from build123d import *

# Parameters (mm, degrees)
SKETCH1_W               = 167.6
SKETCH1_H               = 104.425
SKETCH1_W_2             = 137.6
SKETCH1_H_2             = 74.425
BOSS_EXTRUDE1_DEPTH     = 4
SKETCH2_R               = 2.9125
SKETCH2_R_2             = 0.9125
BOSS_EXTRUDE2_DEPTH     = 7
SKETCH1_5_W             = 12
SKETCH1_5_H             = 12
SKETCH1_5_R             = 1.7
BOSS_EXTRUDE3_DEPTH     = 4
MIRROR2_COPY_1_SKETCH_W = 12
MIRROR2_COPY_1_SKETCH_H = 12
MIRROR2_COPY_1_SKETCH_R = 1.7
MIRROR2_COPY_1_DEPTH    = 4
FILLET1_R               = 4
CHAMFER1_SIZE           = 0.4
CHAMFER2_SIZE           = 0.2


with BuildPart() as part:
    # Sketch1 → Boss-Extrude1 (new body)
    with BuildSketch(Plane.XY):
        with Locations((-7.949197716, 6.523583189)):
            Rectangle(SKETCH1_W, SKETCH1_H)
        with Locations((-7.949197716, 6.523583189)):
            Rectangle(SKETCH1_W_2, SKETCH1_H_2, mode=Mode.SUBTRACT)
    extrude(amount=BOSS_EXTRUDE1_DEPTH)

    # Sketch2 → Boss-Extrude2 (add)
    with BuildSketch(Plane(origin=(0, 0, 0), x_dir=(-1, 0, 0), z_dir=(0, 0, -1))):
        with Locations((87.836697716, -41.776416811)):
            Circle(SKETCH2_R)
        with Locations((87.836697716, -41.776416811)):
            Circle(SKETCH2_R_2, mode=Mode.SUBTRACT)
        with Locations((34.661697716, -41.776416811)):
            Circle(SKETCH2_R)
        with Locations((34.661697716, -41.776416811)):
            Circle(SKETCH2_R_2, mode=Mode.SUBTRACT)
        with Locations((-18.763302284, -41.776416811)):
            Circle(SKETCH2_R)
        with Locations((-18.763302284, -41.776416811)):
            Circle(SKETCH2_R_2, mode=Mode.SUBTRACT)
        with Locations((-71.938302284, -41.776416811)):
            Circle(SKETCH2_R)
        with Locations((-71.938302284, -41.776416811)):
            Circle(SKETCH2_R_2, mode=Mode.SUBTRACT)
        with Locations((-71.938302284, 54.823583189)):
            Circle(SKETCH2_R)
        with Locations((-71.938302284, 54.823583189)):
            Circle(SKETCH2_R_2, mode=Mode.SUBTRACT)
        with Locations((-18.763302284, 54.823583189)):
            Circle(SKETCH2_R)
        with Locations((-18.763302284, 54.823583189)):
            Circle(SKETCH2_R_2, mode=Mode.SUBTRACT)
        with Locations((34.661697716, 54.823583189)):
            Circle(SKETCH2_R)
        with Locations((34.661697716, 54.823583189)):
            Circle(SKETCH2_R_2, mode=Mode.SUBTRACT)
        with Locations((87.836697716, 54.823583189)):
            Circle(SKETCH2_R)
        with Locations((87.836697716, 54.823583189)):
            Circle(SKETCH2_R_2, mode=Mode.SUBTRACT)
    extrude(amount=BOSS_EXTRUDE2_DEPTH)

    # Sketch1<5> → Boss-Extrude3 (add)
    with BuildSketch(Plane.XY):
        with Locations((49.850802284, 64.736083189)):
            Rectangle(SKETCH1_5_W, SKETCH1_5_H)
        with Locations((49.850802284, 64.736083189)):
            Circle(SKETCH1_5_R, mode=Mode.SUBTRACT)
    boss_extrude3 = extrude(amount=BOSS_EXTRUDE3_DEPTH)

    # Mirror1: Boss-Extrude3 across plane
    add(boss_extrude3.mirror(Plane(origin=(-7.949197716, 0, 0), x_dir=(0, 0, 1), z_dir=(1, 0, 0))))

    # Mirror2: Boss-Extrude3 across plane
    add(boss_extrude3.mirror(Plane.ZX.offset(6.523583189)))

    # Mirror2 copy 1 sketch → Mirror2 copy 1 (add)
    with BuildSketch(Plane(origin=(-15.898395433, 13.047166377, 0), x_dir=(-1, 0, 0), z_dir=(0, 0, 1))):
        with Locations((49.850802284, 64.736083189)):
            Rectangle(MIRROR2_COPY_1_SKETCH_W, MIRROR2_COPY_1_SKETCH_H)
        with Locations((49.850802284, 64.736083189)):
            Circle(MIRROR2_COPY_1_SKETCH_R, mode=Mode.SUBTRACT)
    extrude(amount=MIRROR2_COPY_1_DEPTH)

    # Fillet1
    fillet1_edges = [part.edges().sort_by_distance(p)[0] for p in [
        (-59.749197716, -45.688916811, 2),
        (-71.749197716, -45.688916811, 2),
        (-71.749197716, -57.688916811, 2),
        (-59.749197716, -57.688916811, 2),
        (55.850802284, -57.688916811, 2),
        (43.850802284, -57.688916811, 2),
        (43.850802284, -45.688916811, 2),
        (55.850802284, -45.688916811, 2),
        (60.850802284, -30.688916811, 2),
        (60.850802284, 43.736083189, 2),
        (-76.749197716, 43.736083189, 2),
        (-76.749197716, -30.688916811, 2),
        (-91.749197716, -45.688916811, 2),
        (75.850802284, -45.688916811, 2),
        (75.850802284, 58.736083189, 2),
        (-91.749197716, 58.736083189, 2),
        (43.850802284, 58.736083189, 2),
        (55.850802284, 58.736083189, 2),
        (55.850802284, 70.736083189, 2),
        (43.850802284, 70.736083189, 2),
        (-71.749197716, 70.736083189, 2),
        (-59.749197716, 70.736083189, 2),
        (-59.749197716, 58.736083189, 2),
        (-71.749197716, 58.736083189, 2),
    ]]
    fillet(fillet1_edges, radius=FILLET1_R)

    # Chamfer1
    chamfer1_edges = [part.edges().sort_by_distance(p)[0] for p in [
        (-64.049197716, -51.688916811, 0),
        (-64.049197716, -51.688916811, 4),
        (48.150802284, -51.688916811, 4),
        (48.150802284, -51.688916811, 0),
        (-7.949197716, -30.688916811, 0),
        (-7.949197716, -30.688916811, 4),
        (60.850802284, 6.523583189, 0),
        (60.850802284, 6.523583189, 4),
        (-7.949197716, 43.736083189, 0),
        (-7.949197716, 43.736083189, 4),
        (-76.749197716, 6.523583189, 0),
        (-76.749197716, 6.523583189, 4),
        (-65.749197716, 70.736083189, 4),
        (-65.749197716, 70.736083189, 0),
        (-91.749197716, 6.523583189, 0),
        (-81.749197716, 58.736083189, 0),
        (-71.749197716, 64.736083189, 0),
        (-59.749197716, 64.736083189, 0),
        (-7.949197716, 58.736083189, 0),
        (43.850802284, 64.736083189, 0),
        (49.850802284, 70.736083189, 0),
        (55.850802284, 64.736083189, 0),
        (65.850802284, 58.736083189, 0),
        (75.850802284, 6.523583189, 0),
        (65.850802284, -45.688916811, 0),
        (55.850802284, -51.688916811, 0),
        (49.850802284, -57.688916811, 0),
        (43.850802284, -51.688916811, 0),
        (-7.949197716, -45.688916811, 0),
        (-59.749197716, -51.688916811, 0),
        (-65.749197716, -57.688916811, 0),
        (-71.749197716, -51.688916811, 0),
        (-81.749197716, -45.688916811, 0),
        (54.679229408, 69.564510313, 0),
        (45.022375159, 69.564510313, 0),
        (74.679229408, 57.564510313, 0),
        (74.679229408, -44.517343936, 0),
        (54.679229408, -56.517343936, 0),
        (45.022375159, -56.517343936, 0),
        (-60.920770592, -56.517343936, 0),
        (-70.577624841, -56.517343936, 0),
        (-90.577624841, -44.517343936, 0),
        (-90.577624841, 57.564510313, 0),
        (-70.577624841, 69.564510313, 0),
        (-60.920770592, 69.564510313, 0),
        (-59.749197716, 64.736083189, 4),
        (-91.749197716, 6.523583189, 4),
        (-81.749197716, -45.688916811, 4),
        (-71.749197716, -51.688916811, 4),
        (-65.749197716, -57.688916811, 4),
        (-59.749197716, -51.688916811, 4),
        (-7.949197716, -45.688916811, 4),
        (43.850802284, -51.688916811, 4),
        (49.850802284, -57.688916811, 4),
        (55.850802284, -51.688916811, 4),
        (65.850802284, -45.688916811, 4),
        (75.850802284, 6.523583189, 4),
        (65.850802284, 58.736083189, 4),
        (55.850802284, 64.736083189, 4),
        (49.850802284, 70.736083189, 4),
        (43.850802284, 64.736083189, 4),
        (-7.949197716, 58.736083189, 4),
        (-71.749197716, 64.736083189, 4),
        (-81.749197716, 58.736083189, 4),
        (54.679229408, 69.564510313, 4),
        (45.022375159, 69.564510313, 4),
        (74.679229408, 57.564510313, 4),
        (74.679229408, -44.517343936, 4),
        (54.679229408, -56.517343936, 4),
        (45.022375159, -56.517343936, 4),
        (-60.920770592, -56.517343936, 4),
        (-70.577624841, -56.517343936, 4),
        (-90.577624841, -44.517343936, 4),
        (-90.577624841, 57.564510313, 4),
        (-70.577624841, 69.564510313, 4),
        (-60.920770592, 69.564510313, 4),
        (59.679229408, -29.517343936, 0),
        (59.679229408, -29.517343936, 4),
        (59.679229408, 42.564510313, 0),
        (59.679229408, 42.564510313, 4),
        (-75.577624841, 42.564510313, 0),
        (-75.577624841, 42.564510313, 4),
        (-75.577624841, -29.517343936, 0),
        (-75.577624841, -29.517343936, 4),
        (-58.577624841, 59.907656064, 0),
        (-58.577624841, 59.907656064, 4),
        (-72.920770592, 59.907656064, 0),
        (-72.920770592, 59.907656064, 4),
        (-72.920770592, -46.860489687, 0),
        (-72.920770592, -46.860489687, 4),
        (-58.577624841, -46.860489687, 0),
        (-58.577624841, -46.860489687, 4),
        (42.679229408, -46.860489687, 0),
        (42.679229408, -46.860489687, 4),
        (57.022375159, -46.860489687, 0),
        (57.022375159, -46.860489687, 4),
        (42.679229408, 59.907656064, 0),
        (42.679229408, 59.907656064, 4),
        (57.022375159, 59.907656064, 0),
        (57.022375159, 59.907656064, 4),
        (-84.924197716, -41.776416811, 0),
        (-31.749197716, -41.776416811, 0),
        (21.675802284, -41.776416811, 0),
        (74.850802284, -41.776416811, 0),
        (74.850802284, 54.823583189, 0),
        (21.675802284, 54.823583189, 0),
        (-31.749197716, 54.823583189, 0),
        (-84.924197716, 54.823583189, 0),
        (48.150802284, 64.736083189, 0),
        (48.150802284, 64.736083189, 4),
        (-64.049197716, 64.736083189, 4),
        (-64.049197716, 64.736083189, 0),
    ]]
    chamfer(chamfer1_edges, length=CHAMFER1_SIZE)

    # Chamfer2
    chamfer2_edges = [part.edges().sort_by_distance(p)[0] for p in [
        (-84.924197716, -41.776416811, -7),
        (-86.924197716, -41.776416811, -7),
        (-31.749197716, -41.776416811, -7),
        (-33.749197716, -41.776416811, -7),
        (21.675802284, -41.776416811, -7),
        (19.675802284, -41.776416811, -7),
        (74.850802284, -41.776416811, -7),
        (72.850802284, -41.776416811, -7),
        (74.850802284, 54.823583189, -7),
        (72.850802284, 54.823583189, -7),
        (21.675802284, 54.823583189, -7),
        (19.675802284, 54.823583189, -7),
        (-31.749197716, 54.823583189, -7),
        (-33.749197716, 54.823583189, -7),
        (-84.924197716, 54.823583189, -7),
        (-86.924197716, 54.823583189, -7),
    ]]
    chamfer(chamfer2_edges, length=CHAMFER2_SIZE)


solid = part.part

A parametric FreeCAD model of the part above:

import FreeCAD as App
import Part
import Sketcher
from FreeCAD import Vector
Q = App.Units.Quantity


def edges_at(feature, points):
    """Names of the edges that pass closest to the given points."""
    edges = feature.Shape.Edges
    near = lambda p: min(range(len(edges)), key=lambda i: edges[i].distToShape(Part.Vertex(*p))[0])
    return sorted({f"Edge{near(p) + 1}" for p in points})


def add_polygon(sketch, points):
    """Adds a closed chain of lines whose ends are joined by coincident constraints."""
    first, n = sketch.GeometryCount, len(points)
    for a, b in zip(points, points[1:] + points[:1]):
        sketch.addGeometry(Part.LineSegment(App.Vector(*a, 0), App.Vector(*b, 0)), False)
    for i in range(n):
        sketch.addConstraint(Sketcher.Constraint("Coincident", first + i, 2, first + (i + 1) % n, 1))

doc = App.newDocument("Part")
body = doc.addObject("PartDesign::Body", "Body")

sketch1 = body.newObject("Sketcher::SketchObject", "Sketch")
sketch1.AttachmentSupport = (doc.getObject("XY_Plane"), [""])
sketch1.MapMode = "FlatFace"
add_polygon(sketch1, [(-92, 59), (-92, -46), (76, -46), (76, 59)])
add_polygon(sketch1, [(61, -31), (-77, -31), (-77, 44), (61, 44)])
sketch1.addConstraint(Sketcher.Constraint("Vertical", 0))
sketch1.addConstraint(Sketcher.Constraint("Horizontal", 1))
sketch1.addConstraint(Sketcher.Constraint("Vertical", 2))
sketch1.addConstraint(Sketcher.Constraint("Horizontal", 3))
sketch1.addConstraint(Sketcher.Constraint("Horizontal", 4))
sketch1.addConstraint(Sketcher.Constraint("Vertical", 5))
sketch1.addConstraint(Sketcher.Constraint("Horizontal", 6))
sketch1.addConstraint(Sketcher.Constraint("Vertical", 7))
sketch1.addConstraint(Sketcher.Constraint("DistanceX", 1, 1, 1, 2, Q("167.6 mm")))
sketch1.addConstraint(Sketcher.Constraint("DistanceX", 4, 2, 4, 1, Q("137.6 mm")))
sketch1.addConstraint(Sketcher.Constraint("DistanceX", 0, 2, 4, 2, Q("15 mm")))
sketch1.addConstraint(Sketcher.Constraint("DistanceY", 0, 2, 4, 2, Q("15 mm")))
sketch1.addConstraint(Sketcher.Constraint("DistanceY", 5, 2, 3, 2, Q("15 mm")))
sketch1.addConstraint(Sketcher.Constraint("DistanceY", 0, 2, 0, 1, Q("104.425 mm")))
sketch1.addConstraint(Sketcher.Constraint("DistanceX", 0, 2, -1, 1, Q("91.749198 mm")))
sketch1.addConstraint(Sketcher.Constraint("DistanceY", 0, 2, -1, 1, Q("45.688917 mm")))
pad1 = body.newObject("PartDesign::Pad", "Pad")
pad1.Profile = sketch1
pad1.Length = 4

sketch2 = body.newObject("Sketcher::SketchObject", "Sketch001")
sketch2.AttachmentSupport = (doc.getObject("XY_Plane"), [""])
sketch2.MapMode = "FlatFace"
sketch2.addGeometry(Part.Circle(Vector(-87.8, -41.8, 0), Vector(0, 0, 1), 2.9), False)
sketch2.addGeometry(Part.Circle(Vector(-87.8, -41.8, 0), Vector(0, 0, 1), 0.9), False)
sketch2.addGeometry(Part.Circle(Vector(-34.7, -41.8, 0), Vector(0, 0, 1), 2.9), False)
sketch2.addGeometry(Part.Circle(Vector(-34.7, -41.8, 0), Vector(0, 0, 1), 0.9), False)
sketch2.addGeometry(Part.Circle(Vector(18.8, -41.8, 0), Vector(0, 0, 1), 2.9), False)
sketch2.addGeometry(Part.Circle(Vector(18.8, -41.8, 0), Vector(0, 0, 1), 0.9), False)
sketch2.addGeometry(Part.Circle(Vector(71.9, -41.8, 0), Vector(0, 0, 1), 2.9), False)
sketch2.addGeometry(Part.Circle(Vector(71.9, -41.8, 0), Vector(0, 0, 1), 0.9), False)
sketch2.addGeometry(Part.Circle(Vector(71.9, 54.8, 0), Vector(0, 0, 1), 2.9), False)
sketch2.addGeometry(Part.Circle(Vector(71.9, 54.8, 0), Vector(0, 0, 1), 0.9), False)
sketch2.addGeometry(Part.Circle(Vector(18.8, 54.8, 0), Vector(0, 0, 1), 2.9), False)
sketch2.addGeometry(Part.Circle(Vector(18.8, 54.8, 0), Vector(0, 0, 1), 0.9), False)
sketch2.addGeometry(Part.Circle(Vector(-34.7, 54.8, 0), Vector(0, 0, 1), 2.9), False)
sketch2.addGeometry(Part.Circle(Vector(-34.7, 54.8, 0), Vector(0, 0, 1), 0.9), False)
sketch2.addGeometry(Part.Circle(Vector(-87.8, 54.8, 0), Vector(0, 0, 1), 2.9), False)
sketch2.addGeometry(Part.Circle(Vector(-87.8, 54.8, 0), Vector(0, 0, 1), 0.9), False)
sketch2.addConstraint(Sketcher.Constraint("Coincident", 1, 3, 0, 3))
sketch2.addConstraint(Sketcher.Constraint("Coincident", 3, 3, 2, 3))
sketch2.addConstraint(Sketcher.Constraint("Coincident", 5, 3, 4, 3))
sketch2.addConstraint(Sketcher.Constraint("Coincident", 7, 3, 6, 3))
sketch2.addConstraint(Sketcher.Constraint("Coincident", 9, 3, 8, 3))
sketch2.addConstraint(Sketcher.Constraint("Coincident", 11, 3, 10, 3))
sketch2.addConstraint(Sketcher.Constraint("Coincident", 13, 3, 12, 3))
sketch2.addConstraint(Sketcher.Constraint("Coincident", 15, 3, 14, 3))
sketch2.addConstraint(Sketcher.Constraint("Equal", 0, 2))
sketch2.addConstraint(Sketcher.Constraint("Equal", 1, 3))
sketch2.addConstraint(Sketcher.Constraint("Equal", 2, 4))
sketch2.addConstraint(Sketcher.Constraint("Equal", 3, 5))
sketch2.addConstraint(Sketcher.Constraint("Equal", 4, 6))
sketch2.addConstraint(Sketcher.Constraint("Equal", 5, 7))
sketch2.addConstraint(Sketcher.Constraint("Equal", 6, 8))
sketch2.addConstraint(Sketcher.Constraint("Equal", 7, 9))
sketch2.addConstraint(Sketcher.Constraint("Equal", 8, 10))
sketch2.addConstraint(Sketcher.Constraint("Equal", 9, 11))
sketch2.addConstraint(Sketcher.Constraint("Equal", 10, 12))
sketch2.addConstraint(Sketcher.Constraint("Equal", 11, 13))
sketch2.addConstraint(Sketcher.Constraint("Equal", 12, 14))
sketch2.addConstraint(Sketcher.Constraint("Equal", 13, 15))
sketch2.addConstraint(Sketcher.Constraint("Horizontal", 1, 3, 2, 3))
sketch2.addConstraint(Sketcher.Constraint("Horizontal", 3, 3, 4, 3))
sketch2.addConstraint(Sketcher.Constraint("Horizontal", 5, 3, 6, 3))
sketch2.addConstraint(Sketcher.Constraint("Horizontal", 9, 3, 10, 3))
sketch2.addConstraint(Sketcher.Constraint("Horizontal", 11, 3, 12, 3))
sketch2.addConstraint(Sketcher.Constraint("Horizontal", 13, 3, 14, 3))
sketch2.addConstraint(Sketcher.Constraint("Vertical", 7, 3, 8, 3))
sketch2.addConstraint(Sketcher.Constraint("Vertical", 5, 3, 10, 3))
sketch2.addConstraint(Sketcher.Constraint("Vertical", 3, 3, 12, 3))
sketch2.addConstraint(Sketcher.Constraint("Vertical", 1, 3, 14, 3))
sketch2.addConstraint(Sketcher.Constraint("Diameter", 0, Q("5.825 mm")))
sketch2.addConstraint(Sketcher.Constraint("Diameter", 1, Q("1.825 mm")))
sketch2.addConstraint(Sketcher.Constraint("DistanceX", 0, 3, 4, 3, Q("106.6 mm")))
sketch2.addConstraint(Sketcher.Constraint("DistanceX", 2, 3, 6, 3, Q("106.6 mm")))
sketch2.addConstraint(Sketcher.Constraint("DistanceY", 6, 3, 8, 3, Q("96.6 mm")))
sketch2.addConstraint(Sketcher.Constraint("DistanceX", 0, 3, 2, 3, Q("53.175 mm")))
sketch2.addConstraint(Sketcher.Constraint("DistanceX", 0, 3, -1, 1, Q("87.836698 mm")))
sketch2.addConstraint(Sketcher.Constraint("DistanceY", 0, 3, -1, 1, Q("41.776417 mm")))
pad2 = body.newObject("PartDesign::Pad", "Pad001")
pad2.Profile = sketch2
pad2.Length = 7
pad2.Reversed = True

sketch3 = body.newObject("Sketcher::SketchObject", "Sketch002")
sketch3.AttachmentSupport = (doc.getObject("XY_Plane"), [""])
sketch3.MapMode = "FlatFace"
add_polygon(sketch3, [(43.9, 70.7), (43.9, 58.7), (55.9, 58.7), (55.9, 70.7)])
sketch3.addGeometry(Part.Circle(Vector(49.9, 64.7, 0), Vector(0, 0, 1), 1.7), False)
sketch3.addConstraint(Sketcher.Constraint("Vertical", 0))
sketch3.addConstraint(Sketcher.Constraint("Horizontal", 1))
sketch3.addConstraint(Sketcher.Constraint("Vertical", 2))
sketch3.addConstraint(Sketcher.Constraint("Horizontal", 3))
sketch3.addConstraint(Sketcher.Constraint("Equal", 3, 0))
sketch3.addConstraint(Sketcher.Constraint("Diameter", 4, Q("3.4 mm")))
sketch3.addConstraint(Sketcher.Constraint("DistanceX", 1, 1, 1, 2, Q("12 mm")))
sketch3.addConstraint(Sketcher.Constraint("DistanceX", 0, 2, 4, 3, Q("6 mm")))
sketch3.addConstraint(Sketcher.Constraint("DistanceY", 0, 2, 4, 3, Q("6 mm")))
sketch3.addConstraint(Sketcher.Constraint("DistanceX", -1, 1, 4, 3, Q("49.850802 mm")))
sketch3.addConstraint(Sketcher.Constraint("DistanceY", -1, 1, 4, 3, Q("64.736083 mm")))
pad3 = body.newObject("PartDesign::Pad", "Pad002")
pad3.Profile = sketch3
pad3.Length = 4
doc.recompute()

datumplane = body.newObject("PartDesign::Plane", "DatumPlane")
datumplane.AttachmentSupport = (doc.getObject("YZ_Plane"), [""])
datumplane.MapMode = "FlatFace"
datumplane.AttachmentOffset = App.Placement(Vector(0, 0, -7.949198), App.Rotation())
mirrored = body.newObject("PartDesign::Mirrored", "Mirrored")
mirrored.Originals = [pad3]
mirrored.MirrorPlane = (datumplane, [""])
body.Tip = mirrored
doc.recompute()

datumplane2 = body.newObject("PartDesign::Plane", "DatumPlane001")
datumplane2.AttachmentSupport = (doc.getObject("XZ_Plane"), [""])
datumplane2.MapMode = "FlatFace"
datumplane2.AttachmentOffset = App.Placement(Vector(0, 0, -6.523583), App.Rotation())
mirrored2 = body.newObject("PartDesign::Mirrored", "Mirrored001")
mirrored2.Originals = [pad3]
mirrored2.MirrorPlane = (datumplane2, [""])
body.Tip = mirrored2

sketch4 = body.newObject("Sketcher::SketchObject", "Sketch003")
sketch4.AttachmentSupport = (doc.getObject("XY_Plane"), [""])
sketch4.MapMode = "FlatFace"
add_polygon(sketch4, [(-59.7, -57.7), (-59.7, -45.7), (-71.7, -45.7), (-71.7, -57.7)])
sketch4.addGeometry(Part.Circle(Vector(-65.7, -51.7, 0), Vector(0, 0, 1), 1.7), False)
sketch4.addConstraint(Sketcher.Constraint("Vertical", 0))
sketch4.addConstraint(Sketcher.Constraint("Horizontal", 1))
sketch4.addConstraint(Sketcher.Constraint("Vertical", 2))
sketch4.addConstraint(Sketcher.Constraint("Horizontal", 3))
sketch4.addConstraint(Sketcher.Constraint("Equal", 3, 0))
sketch4.addConstraint(Sketcher.Constraint("Diameter", 4, Q("3.4 mm")))
sketch4.addConstraint(Sketcher.Constraint("DistanceX", 1, 2, 1, 1, Q("12 mm")))
sketch4.addConstraint(Sketcher.Constraint("DistanceX", 4, 3, 0, 2, Q("6 mm")))
sketch4.addConstraint(Sketcher.Constraint("DistanceY", 4, 3, 0, 2, Q("6 mm")))
sketch4.addConstraint(Sketcher.Constraint("DistanceX", 4, 3, -1, 1, Q("65.749198 mm")))
sketch4.addConstraint(Sketcher.Constraint("DistanceY", 4, 3, -1, 1, Q("51.688917 mm")))
pad4 = body.newObject("PartDesign::Pad", "Pad003")
pad4.Profile = sketch4
pad4.Length = 4
doc.recompute()

fillet = body.newObject("PartDesign::Fillet", "Fillet")
fillet.Base = (pad4, edges_at(pad4, [
    (-59.749, -45.689, 2),
    (-71.749, -45.689, 2),
    (-71.749, -57.689, 2),
    (-59.749, -57.689, 2),
    (55.851, -57.689, 2),
    (43.851, -57.689, 2),
    (43.851, -45.689, 2),
    (55.851, -45.689, 2),
    (60.851, -30.689, 2),
    (60.851, 43.736, 2),
    (-76.749, 43.736, 2),
    (-76.749, -30.689, 2),
    (-91.749, -45.689, 2),
    (75.851, -45.689, 2),
    (75.851, 58.736, 2),
    (-91.749, 58.736, 2),
    (43.851, 58.736, 2),
    (55.851, 58.736, 2),
    (55.851, 70.736, 2),
    (43.851, 70.736, 2),
    (-71.749, 70.736, 2),
    (-59.749, 70.736, 2),
    (-59.749, 58.736, 2),
    (-71.749, 58.736, 2),
]))
fillet.Radius = 4
doc.recompute()

chamfer = body.newObject("PartDesign::Chamfer", "Chamfer")
chamfer.Base = (fillet, edges_at(fillet, [
    (-64.049, -51.689, 0),
    (-64.049, -51.689, 4),
    (48.151, -51.689, 4),
    (48.151, -51.689, 0),
    (-7.949, -30.689, 0),
    (-7.949, -30.689, 4),
    (60.851, 6.524, 0),
    (60.851, 6.524, 4),
    (-7.949, 43.736, 0),
    (-7.949, 43.736, 4),
    (-76.749, 6.524, 0),
    (-76.749, 6.524, 4),
    (-65.749, 70.736, 4),
    (-65.749, 70.736, 0),
    (-91.749, 6.524, 0),
    (-81.749, 58.736, 0),
    (-71.749, 64.736, 0),
    (-59.749, 64.736, 0),
    (-7.949, 58.736, 0),
    (43.851, 64.736, 0),
    (49.851, 70.736, 0),
    (55.851, 64.736, 0),
    (65.851, 58.736, 0),
    (75.851, 6.524, 0),
    (65.851, -45.689, 0),
    (55.851, -51.689, 0),
    (49.851, -57.689, 0),
    (43.851, -51.689, 0),
    (-7.949, -45.689, 0),
    (-59.749, -51.689, 0),
    (-65.749, -57.689, 0),
    (-71.749, -51.689, 0),
    (-81.749, -45.689, 0),
    (54.679, 69.565, 0),
    (45.022, 69.565, 0),
    (74.679, 57.565, 0),
    (74.679, -44.517, 0),
    (54.679, -56.517, 0),
    (45.022, -56.517, 0),
    (-60.921, -56.517, 0),
    (-70.578, -56.517, 0),
    (-90.578, -44.517, 0),
    (-90.578, 57.565, 0),
    (-70.578, 69.565, 0),
    (-60.921, 69.565, 0),
    (-59.749, 64.736, 4),
    (-91.749, 6.524, 4),
    (-81.749, -45.689, 4),
    (-71.749, -51.689, 4),
    (-65.749, -57.689, 4),
    (-59.749, -51.689, 4),
    (-7.949, -45.689, 4),
    (43.851, -51.689, 4),
    (49.851, -57.689, 4),
    (55.851, -51.689, 4),
    (65.851, -45.689, 4),
    (75.851, 6.524, 4),
    (65.851, 58.736, 4),
    (55.851, 64.736, 4),
    (49.851, 70.736, 4),
    (43.851, 64.736, 4),
    (-7.949, 58.736, 4),
    (-71.749, 64.736, 4),
    (-81.749, 58.736, 4),
    (54.679, 69.565, 4),
    (45.022, 69.565, 4),
    (74.679, 57.565, 4),
    (74.679, -44.517, 4),
    (54.679, -56.517, 4),
    (45.022, -56.517, 4),
    (-60.921, -56.517, 4),
    (-70.578, -56.517, 4),
    (-90.578, -44.517, 4),
    (-90.578, 57.565, 4),
    (-70.578, 69.565, 4),
    (-60.921, 69.565, 4),
    (59.679, -29.517, 0),
    (59.679, -29.517, 4),
    (59.679, 42.565, 0),
    (59.679, 42.565, 4),
    (-75.578, 42.565, 0),
    (-75.578, 42.565, 4),
    (-75.578, -29.517, 0),
    (-75.578, -29.517, 4),
    (-58.578, 59.908, 0),
    (-58.578, 59.908, 4),
    (-72.921, 59.908, 0),
    (-72.921, 59.908, 4),
    (-72.921, -46.86, 0),
    (-72.921, -46.86, 4),
    (-58.578, -46.86, 0),
    (-58.578, -46.86, 4),
    (42.679, -46.86, 0),
    (42.679, -46.86, 4),
    (57.022, -46.86, 0),
    (57.022, -46.86, 4),
    (42.679, 59.908, 0),
    (42.679, 59.908, 4),
    (57.022, 59.908, 0),
    (57.022, 59.908, 4),
    (-84.924, -41.776, 0),
    (-31.749, -41.776, 0),
    (21.676, -41.776, 0),
    (74.851, -41.776, 0),
    (74.851, 54.824, 0),
    (21.676, 54.824, 0),
    (-31.749, 54.824, 0),
    (-84.924, 54.824, 0),
    (48.151, 64.736, 0),
    (48.151, 64.736, 4),
    (-64.049, 64.736, 4),
    (-64.049, 64.736, 0),
]))
chamfer.Size = 0.4
doc.recompute()

chamfer2 = body.newObject("PartDesign::Chamfer", "Chamfer001")
chamfer2.Base = (chamfer, edges_at(chamfer, [
    (-84.924, -41.776, -7),
    (-86.924, -41.776, -7),
    (-31.749, -41.776, -7),
    (-33.749, -41.776, -7),
    (21.676, -41.776, -7),
    (19.676, -41.776, -7),
    (74.851, -41.776, -7),
    (72.851, -41.776, -7),
    (74.851, 54.824, -7),
    (72.851, 54.824, -7),
    (21.676, 54.824, -7),
    (19.676, 54.824, -7),
    (-31.749, 54.824, -7),
    (-33.749, 54.824, -7),
    (-84.924, 54.824, -7),
    (-86.924, 54.824, -7),
]))
chamfer2.Size = 0.2

doc.recompute()
